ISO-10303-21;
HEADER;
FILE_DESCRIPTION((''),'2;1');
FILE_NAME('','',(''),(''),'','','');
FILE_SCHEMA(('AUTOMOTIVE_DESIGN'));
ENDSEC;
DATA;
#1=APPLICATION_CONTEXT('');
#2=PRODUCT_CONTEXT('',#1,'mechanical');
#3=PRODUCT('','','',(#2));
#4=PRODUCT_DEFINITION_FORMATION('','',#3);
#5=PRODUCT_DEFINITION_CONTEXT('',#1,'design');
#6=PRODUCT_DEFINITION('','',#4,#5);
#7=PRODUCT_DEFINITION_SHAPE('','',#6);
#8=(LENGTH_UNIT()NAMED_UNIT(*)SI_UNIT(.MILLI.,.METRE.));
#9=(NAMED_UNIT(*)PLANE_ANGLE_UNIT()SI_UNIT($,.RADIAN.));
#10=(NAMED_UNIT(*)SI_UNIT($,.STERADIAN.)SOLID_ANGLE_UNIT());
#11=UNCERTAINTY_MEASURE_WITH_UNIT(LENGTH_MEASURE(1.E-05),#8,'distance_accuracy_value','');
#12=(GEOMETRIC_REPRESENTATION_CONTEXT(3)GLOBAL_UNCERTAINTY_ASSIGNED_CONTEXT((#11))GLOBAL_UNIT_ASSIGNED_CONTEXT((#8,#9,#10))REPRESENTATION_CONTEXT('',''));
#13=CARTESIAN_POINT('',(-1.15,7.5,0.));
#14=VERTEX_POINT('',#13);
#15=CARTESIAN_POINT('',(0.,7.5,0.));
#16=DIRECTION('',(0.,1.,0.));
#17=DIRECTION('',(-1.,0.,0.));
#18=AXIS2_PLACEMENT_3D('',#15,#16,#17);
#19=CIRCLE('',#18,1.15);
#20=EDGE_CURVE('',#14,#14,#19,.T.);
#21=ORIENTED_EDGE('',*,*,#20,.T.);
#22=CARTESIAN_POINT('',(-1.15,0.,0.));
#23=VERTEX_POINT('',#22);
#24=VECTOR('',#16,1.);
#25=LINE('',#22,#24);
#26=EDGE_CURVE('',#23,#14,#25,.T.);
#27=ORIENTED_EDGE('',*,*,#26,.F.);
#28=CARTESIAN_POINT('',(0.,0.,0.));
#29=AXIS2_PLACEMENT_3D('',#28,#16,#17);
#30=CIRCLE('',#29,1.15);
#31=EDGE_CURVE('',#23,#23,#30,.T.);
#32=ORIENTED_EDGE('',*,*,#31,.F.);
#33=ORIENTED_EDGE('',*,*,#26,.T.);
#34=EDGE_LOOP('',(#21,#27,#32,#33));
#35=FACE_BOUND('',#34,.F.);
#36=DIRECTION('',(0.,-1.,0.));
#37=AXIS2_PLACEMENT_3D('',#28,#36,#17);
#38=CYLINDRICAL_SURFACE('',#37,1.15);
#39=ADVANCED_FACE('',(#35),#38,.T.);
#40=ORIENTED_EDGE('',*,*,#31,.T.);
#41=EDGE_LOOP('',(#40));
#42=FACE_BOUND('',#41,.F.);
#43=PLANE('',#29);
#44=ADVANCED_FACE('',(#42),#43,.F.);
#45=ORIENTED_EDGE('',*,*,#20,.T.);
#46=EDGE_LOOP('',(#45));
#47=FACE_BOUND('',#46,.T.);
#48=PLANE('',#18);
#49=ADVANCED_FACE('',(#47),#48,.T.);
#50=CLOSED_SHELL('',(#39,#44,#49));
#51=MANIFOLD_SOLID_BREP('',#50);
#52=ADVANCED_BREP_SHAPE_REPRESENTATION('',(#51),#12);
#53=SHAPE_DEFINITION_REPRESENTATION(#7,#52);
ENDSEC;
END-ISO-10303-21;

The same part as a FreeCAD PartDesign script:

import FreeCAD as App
import Part
import Sketcher

doc = App.newDocument("Part")
body = doc.addObject("PartDesign::Body", "Body")

sketch1 = body.newObject("Sketcher::SketchObject", "Sketch")
sketch1.AttachmentSupport = (doc.getObject("XZ_Plane"), [""])
sketch1.MapMode = "FlatFace"
sketch1.addGeometry(Part.Circle(App.Vector(0, 0, 0), App.Vector(0, 0, 1), 1.1), False)
sketch1.addConstraint(Sketcher.Constraint("Coincident", 0, 3, -1, 1))
sketch1.addConstraint(Sketcher.Constraint("Diameter", 0, 2.3))
pad1 = body.newObject("PartDesign::Pad", "Pad")
pad1.Profile = sketch1
pad1.Length = 7.5
pad1.Reversed = True

doc.recompute()
